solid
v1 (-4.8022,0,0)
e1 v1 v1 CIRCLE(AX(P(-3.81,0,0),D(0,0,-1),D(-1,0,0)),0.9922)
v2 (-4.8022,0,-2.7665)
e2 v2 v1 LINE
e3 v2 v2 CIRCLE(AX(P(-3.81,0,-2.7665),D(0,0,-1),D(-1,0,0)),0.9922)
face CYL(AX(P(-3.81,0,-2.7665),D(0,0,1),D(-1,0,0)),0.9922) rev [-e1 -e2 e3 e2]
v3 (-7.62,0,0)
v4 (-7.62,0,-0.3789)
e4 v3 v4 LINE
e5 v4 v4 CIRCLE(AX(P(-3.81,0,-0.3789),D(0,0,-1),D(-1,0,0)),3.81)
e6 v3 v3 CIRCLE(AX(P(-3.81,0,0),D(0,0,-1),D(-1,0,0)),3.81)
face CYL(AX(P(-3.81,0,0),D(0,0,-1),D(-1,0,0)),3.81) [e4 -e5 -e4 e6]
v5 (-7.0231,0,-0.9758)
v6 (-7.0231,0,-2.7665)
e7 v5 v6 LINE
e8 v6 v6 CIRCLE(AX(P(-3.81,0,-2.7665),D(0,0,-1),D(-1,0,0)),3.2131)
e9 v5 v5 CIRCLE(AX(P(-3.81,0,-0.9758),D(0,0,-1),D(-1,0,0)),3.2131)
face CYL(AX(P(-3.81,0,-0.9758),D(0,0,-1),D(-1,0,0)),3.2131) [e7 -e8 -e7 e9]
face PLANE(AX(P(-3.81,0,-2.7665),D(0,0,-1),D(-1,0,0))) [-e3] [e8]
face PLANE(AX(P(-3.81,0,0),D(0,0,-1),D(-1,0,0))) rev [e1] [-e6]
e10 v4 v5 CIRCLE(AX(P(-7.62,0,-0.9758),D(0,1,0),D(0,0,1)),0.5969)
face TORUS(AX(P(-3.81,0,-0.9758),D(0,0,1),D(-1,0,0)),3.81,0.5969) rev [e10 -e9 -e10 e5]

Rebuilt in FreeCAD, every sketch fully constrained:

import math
import FreeCAD as App
import Part
import Sketcher
from FreeCAD import Vector
Q = App.Units.Quantity

doc = App.newDocument("Part")
params = doc.addObject("Spreadsheet::Sheet", "Params")
for row, (alias, value) in enumerate([
    ("revolution_angle", "360 deg"),
], start=1):
    params.set(f"A{row}", alias)
    params.set(f"B{row}", "=" + value)
    params.setAlias(f"B{row}", alias)

body = doc.addObject("PartDesign::Body", "Body")

# Sketch on XZ plane
sketch1 = body.newObject("Sketcher::SketchObject", "Sketch")
sketch1.AttachmentSupport = (doc.getObject("XZ_Plane"), [""])
sketch1.MapMode = "FlatFace"
sketch1.addGeometry(Part.LineSegment(Vector(-7.62, 0, 0), Vector(-4.8022, 0, 0)), False)
sketch1.addGeometry(Part.LineSegment(Vector(-4.8022, 0, 0), Vector(-4.8022, -2.7665, 0)), False)
sketch1.addGeometry(Part.LineSegment(Vector(-4.8022, -2.7665, 0), Vector(-7.0231, -2.7665, 0)), False)
sketch1.addGeometry(Part.LineSegment(Vector(-7.0231, -2.7665, 0), Vector(-7.0231, -0.9758, 0)), False)
sketch1.addGeometry(Part.ArcOfCircle(Part.Circle(Vector(-7.62, -0.9758, 0), Vector(0, 0, 1), 0.5969), math.radians(0), math.radians(90)), False)
sketch1.addGeometry(Part.LineSegment(Vector(-7.62, -0.3789, 0), Vector(-7.62, 0, 0)), False)
sketch1.addGeometry(Part.LineSegment(Vector(-3.81, 0, 0), Vector(-3.81, -2.7665, 0)), True)  # axis
sketch1.addConstraint(Sketcher.Constraint("Coincident", 0, 2, 1, 1))
sketch1.addConstraint(Sketcher.Constraint("Coincident", 1, 2, 2, 1))
sketch1.addConstraint(Sketcher.Constraint("Coincident", 2, 2, 3, 1))
sketch1.addConstraint(Sketcher.Constraint("Tangent", 3, 2, 4, 1))
sketch1.addConstraint(Sketcher.Constraint("Coincident", 4, 2, 5, 1))
sketch1.addConstraint(Sketcher.Constraint("Coincident", 5, 2, 0, 1))
sketch1.addConstraint(Sketcher.Constraint("Horizontal", 0))
sketch1.addConstraint(Sketcher.Constraint("Vertical", 1))
sketch1.addConstraint(Sketcher.Constraint("Horizontal", 2))
sketch1.addConstraint(Sketcher.Constraint("Vertical", 3))
sketch1.addConstraint(Sketcher.Constraint("Vertical", 5))
sketch1.addConstraint(Sketcher.Constraint("Vertical", 6))
sketch1.addConstraint(Sketcher.Constraint("PointOnObject", 0, 2, -1))
sketch1.addConstraint(Sketcher.Constraint("PointOnObject", 6, 1, -1))
sketch1.addConstraint(Sketcher.Constraint("Horizontal", 2, 2, 6, 2))
sketch1.addConstraint(Sketcher.Constraint("DistanceX", 4, 3, -1, 1, Q("0.3 in")))
sketch1.addConstraint(Sketcher.Constraint("DistanceX", 4, 2, -1, 1, Q("0.3 in")))
sketch1.addConstraint(Sketcher.Constraint("Radius", 4, Q("0.0235 in")))
sketch1.addConstraint(Sketcher.Constraint("DistanceX", 6, 1, -1, 1, Q("0.15 in")))
sketch1.addConstraint(Sketcher.Constraint("DistanceY", 3, 1, 3, 2, Q("0.0705 in")))
sketch1.addConstraint(Sketcher.Constraint("DistanceX", 0, 1, 0, 2, 2.8178))
sketch1.addConstraint(Sketcher.Constraint("DistanceY", 1, 2, 1, 1, 2.7665))
revolution = body.newObject("PartDesign::Revolution", "Revolution")
revolution.Profile = sketch1
revolution.ReferenceAxis = (sketch1, ["Axis0"])
revolution.setExpression("Angle", "Params.revolution_angle")

doc.recompute()
